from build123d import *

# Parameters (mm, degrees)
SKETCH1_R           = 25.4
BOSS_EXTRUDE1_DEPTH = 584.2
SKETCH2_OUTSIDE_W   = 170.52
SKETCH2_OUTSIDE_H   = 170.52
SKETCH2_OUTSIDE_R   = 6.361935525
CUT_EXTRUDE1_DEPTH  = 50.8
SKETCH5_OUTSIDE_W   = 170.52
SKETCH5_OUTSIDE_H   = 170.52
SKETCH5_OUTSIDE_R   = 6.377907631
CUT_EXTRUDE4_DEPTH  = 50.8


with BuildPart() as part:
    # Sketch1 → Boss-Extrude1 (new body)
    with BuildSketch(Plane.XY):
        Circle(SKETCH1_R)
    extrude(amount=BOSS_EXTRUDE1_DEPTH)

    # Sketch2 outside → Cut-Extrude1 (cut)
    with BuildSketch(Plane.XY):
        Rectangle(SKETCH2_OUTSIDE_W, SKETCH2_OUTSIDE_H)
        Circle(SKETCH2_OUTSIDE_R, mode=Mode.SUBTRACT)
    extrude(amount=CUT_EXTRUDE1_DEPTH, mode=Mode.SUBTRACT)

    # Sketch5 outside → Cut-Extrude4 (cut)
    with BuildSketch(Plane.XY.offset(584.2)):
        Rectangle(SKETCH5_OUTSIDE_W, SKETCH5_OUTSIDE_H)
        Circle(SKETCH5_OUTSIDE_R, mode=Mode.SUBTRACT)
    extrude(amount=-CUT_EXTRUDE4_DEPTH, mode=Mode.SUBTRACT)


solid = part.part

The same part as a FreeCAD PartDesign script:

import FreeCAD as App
import Part
import Sketcher
Q = App.Units.Quantity

doc = App.newDocument("Part")
params = doc.addObject("Spreadsheet::Sheet", "Params")
for row, (alias, value) in enumerate([
    ("sketch1_diameter", "2 in"),
    ("pad1_length", "23 in"),
    ("pocket1_length", "2 in"),
    ("pocket2_length", "2 in"),
], start=1):
    params.set(f"A{row}", alias)
    params.set(f"B{row}", "=" + value)
    params.setAlias(f"B{row}", alias)

body = doc.addObject("PartDesign::Body", "Body")

sketch1 = body.newObject("Sketcher::SketchObject", "Sketch")
sketch1.AttachmentSupport = (doc.getObject("XY_Plane"), [""])
sketch1.MapMode = "FlatFace"
sketch1.addGeometry(Part.Circle(App.Vector(0, 0, 0), App.Vector(0, 0, 1), 25.4), False)
sketch1.addConstraint(Sketcher.Constraint("Coincident", 0, 3, -1, 1))
sketch1.addConstraint(Sketcher.Constraint("Diameter", 0, Q("2 in")))
sketch1.setExpression("Constraints[1]", "Params.sketch1_diameter")
pad1 = body.newObject("PartDesign::Pad", "Pad")
pad1.Profile = sketch1
pad1.setExpression("Length", "Params.pad1_length")

sketch2 = body.newObject("Sketcher::SketchObject", "Sketch001")
sketch2.AttachmentSupport = (doc.getObject("XY_Plane"), [""])
sketch2.MapMode = "FlatFace"
sketch2.addGeometry(Part.LineSegment(App.Vector(-85.26, 85.26, 0), App.Vector(-85.26, -85.26, 0)), False)
sketch2.addGeometry(Part.LineSegment(App.Vector(-85.26, -85.26, 0), App.Vector(85.26, -85.26, 0)), False)
sketch2.addGeometry(Part.LineSegment(App.Vector(85.26, -85.26, 0), App.Vector(85.26, 85.26, 0)), False)
sketch2.addGeometry(Part.LineSegment(App.Vector(85.26, 85.26, 0), App.Vector(-85.26, 85.26, 0)), False)
sketch2.addGeometry(Part.Circle(App.Vector(0, 0, 0), App.Vector(0, 0, 1), 6.361936), False)
sketch2.addConstraint(Sketcher.Constraint("Coincident", 0, 2, 1, 1))
sketch2.addConstraint(Sketcher.Constraint("Coincident", 1, 2, 2, 1))
sketch2.addConstraint(Sketcher.Constraint("Coincident", 2, 2, 3, 1))
sketch2.addConstraint(Sketcher.Constraint("Coincident", 3, 2, 0, 1))
sketch2.addConstraint(Sketcher.Constraint("Vertical", 0))
sketch2.addConstraint(Sketcher.Constraint("Horizontal", 1))
sketch2.addConstraint(Sketcher.Constraint("Vertical", 2))
sketch2.addConstraint(Sketcher.Constraint("Horizontal", 3))
sketch2.addConstraint(Sketcher.Constraint("Coincident", 4, 3, -1, 1))
sketch2.addConstraint(Sketcher.Constraint("Symmetric", 0, 2, 2, 2, -1, 1))
sketch2.addConstraint(Sketcher.Constraint("Equal", 3, 0))
sketch2.addConstraint(Sketcher.Constraint("Diameter", 4, Q("12.723871 mm")))
sketch2.addConstraint(Sketcher.Constraint("DistanceX", 1, 1, 1, 2, Q("170.52 mm")))
pocket1 = body.newObject("PartDesign::Pocket", "Pocket")
pocket1.Profile = sketch2
pocket1.setExpression("Length", "Params.pocket1_length")
pocket1.Reversed = True

sketch3 = body.newObject("Sketcher::SketchObject", "Sketch002")
sketch3.AttachmentSupport = (doc.getObject("XY_Plane"), [""])
sketch3.MapMode = "FlatFace"
sketch3.AttachmentOffset = App.Placement(App.Vector(0, 0, 23 * 25.4), App.Rotation())
sketch3.addGeometry(Part.LineSegment(App.Vector(-85.26, 85.26, 0), App.Vector(-85.26, -85.26, 0)), False)
sketch3.addGeometry(Part.LineSegment(App.Vector(-85.26, -85.26, 0), App.Vector(85.26, -85.26, 0)), False)
sketch3.addGeometry(Part.LineSegment(App.Vector(85.26, -85.26, 0), App.Vector(85.26, 85.26, 0)), False)
sketch3.addGeometry(Part.LineSegment(App.Vector(85.26, 85.26, 0), App.Vector(-85.26, 85.26, 0)), False)
sketch3.addGeometry(Part.Circle(App.Vector(0, 0, 0), App.Vector(0, 0, 1), 6.377908), False)
sketch3.addConstraint(Sketcher.Constraint("Coincident", 0, 2, 1, 1))
sketch3.addConstraint(Sketcher.Constraint("Coincident", 1, 2, 2, 1))
sketch3.addConstraint(Sketcher.Constraint("Coincident", 2, 2, 3, 1))
sketch3.addConstraint(Sketcher.Constraint("Coincident", 3, 2, 0, 1))
sketch3.addConstraint(Sketcher.Constraint("Vertical", 0))
sketch3.addConstraint(Sketcher.Constraint("Horizontal", 1))
sketch3.addConstraint(Sketcher.Constraint("Vertical", 2))
sketch3.addConstraint(Sketcher.Constraint("Horizontal", 3))
sketch3.addConstraint(Sketcher.Constraint("Coincident", 4, 3, -1, 1))
sketch3.addConstraint(Sketcher.Constraint("Symmetric", 0, 2, 2, 2, -1, 1))
sketch3.addConstraint(Sketcher.Constraint("Equal", 3, 0))
sketch3.addConstraint(Sketcher.Constraint("Diameter", 4, Q("12.755815 mm")))
sketch3.addConstraint(Sketcher.Constraint("DistanceX", 1, 1, 1, 2, Q("170.52 mm")))
pocket2 = body.newObject("PartDesign::Pocket", "Pocket001")
pocket2.Profile = sketch3
pocket2.setExpression("Length", "Params.pocket2_length")

doc.recompute()
